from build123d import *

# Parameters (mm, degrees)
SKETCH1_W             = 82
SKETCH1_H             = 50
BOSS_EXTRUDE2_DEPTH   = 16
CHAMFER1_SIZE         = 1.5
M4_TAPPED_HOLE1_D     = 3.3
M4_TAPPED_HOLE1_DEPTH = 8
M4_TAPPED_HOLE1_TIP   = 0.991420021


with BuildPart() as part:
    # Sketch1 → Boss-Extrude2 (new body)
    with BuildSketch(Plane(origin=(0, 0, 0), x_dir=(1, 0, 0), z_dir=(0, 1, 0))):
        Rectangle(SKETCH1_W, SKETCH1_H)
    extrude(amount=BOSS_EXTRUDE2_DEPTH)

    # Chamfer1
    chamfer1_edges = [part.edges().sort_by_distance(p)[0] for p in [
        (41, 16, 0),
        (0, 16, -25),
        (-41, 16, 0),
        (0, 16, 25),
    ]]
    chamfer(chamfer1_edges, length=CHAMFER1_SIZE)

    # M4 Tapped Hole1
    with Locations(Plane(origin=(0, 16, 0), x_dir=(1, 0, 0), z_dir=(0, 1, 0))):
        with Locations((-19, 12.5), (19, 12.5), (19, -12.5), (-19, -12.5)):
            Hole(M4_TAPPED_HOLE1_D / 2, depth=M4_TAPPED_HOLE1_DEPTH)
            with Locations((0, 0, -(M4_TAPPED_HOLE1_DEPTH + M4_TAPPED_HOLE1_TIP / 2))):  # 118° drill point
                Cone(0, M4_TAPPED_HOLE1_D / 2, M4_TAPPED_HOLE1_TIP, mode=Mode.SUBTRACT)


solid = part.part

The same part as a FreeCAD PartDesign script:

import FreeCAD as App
import Part
import Sketcher
from FreeCAD import Vector
Q = App.Units.Quantity


def edges_at(feature, points):
    """Names of the edges that pass closest to the given points."""
    edges = feature.Shape.Edges
    near = lambda p: min(range(len(edges)), key=lambda i: edges[i].distToShape(Part.Vertex(*p))[0])
    return sorted({f"Edge{near(p) + 1}" for p in points})


def add_polygon(sketch, points):
    """Adds a closed chain of lines whose ends are joined by coincident constraints."""
    first, n = sketch.GeometryCount, len(points)
    for a, b in zip(points, points[1:] + points[:1]):
        sketch.addGeometry(Part.LineSegment(App.Vector(*a, 0), App.Vector(*b, 0)), False)
    for i in range(n):
        sketch.addConstraint(Sketcher.Constraint("Coincident", first + i, 2, first + (i + 1) % n, 1))

doc = App.newDocument("Part")
body = doc.addObject("PartDesign::Body", "Body")

# Sketch on XZ plane
sketch1 = doc.addObject("Sketcher::SketchObject", "Sketch")
body.addObject(sketch1)
sketch1.AttachmentSupport = (doc.XZ_Plane, [""])
sketch1.MapMode = "FlatFace"
add_polygon(sketch1, [(-41, -25), (-41, 25), (41, 25), (41, -25)])  # lines 0-3
sketch1.addConstraint(Sketcher.Constraint("Vertical", 0))
sketch1.addConstraint(Sketcher.Constraint("Horizontal", 1))
sketch1.addConstraint(Sketcher.Constraint("Vertical", 2))
sketch1.addConstraint(Sketcher.Constraint("Horizontal", 3))
sketch1.addConstraint(Sketcher.Constraint("Symmetric", 0, 2, 2, 2, -1, 1))
sketch1.addConstraint(Sketcher.Constraint("DistanceX", 1, 1, 1, 2, Q("82 mm")))
sketch1.addConstraint(Sketcher.Constraint("DistanceY", 0, 1, 0, 2, Q("50 mm")))
pad1 = doc.addObject("PartDesign::Pad", "Pad")
body.addObject(pad1)
pad1.Profile = sketch1
pad1.Length = 16
pad1.Reversed = True
doc.recompute()

chamfer = doc.addObject("PartDesign::Chamfer", "Chamfer")
body.addObject(chamfer)
chamfer.Base = (pad1, edges_at(pad1, [
    (41, 16, 0),
    (0, 16, -25),
    (-41, 16, 0),
    (0, 16, 25),
]))
chamfer.Size = 1.5

# Sketch on XZ plane
sketch2 = doc.addObject("Sketcher::SketchObject", "Sketch001")
body.addObject(sketch2)
sketch2.AttachmentSupport = (doc.XZ_Plane, [""])
sketch2.MapMode = "FlatFace"
sketch2.AttachmentOffset = App.Placement(Vector(0, 0, -16), App.Rotation())
sketch2.addGeometry(Part.Circle(Vector(-19, -12.5, 0), Vector(0, 0, 1), 1.65), False)
sketch2.addGeometry(Part.Circle(Vector(19, -12.5, 0), Vector(0, 0, 1), 1.65), False)
sketch2.addGeometry(Part.Circle(Vector(19, 12.5, 0), Vector(0, 0, 1), 1.65), False)
sketch2.addGeometry(Part.Circle(Vector(-19, 12.5, 0), Vector(0, 0, 1), 1.65), False)
sketch2.addConstraint(Sketcher.Constraint("Equal", 0, 1))
sketch2.addConstraint(Sketcher.Constraint("Equal", 1, 2))
sketch2.addConstraint(Sketcher.Constraint("Equal", 2, 3))
sketch2.addConstraint(Sketcher.Constraint("Symmetric", 0, 3, 2, 3, -1, 1))
sketch2.addConstraint(Sketcher.Constraint("Symmetric", 1, 3, 3, 3, -1, 1))
sketch2.addConstraint(Sketcher.Constraint("Symmetric", 0, 3, 1, 3, -2))
sketch2.addConstraint(Sketcher.Constraint("Diameter", 0, Q("3.3 mm")))
sketch2.addConstraint(Sketcher.Constraint("DistanceX", 0, 3, -1, 1, Q("19 mm")))
sketch2.addConstraint(Sketcher.Constraint("DistanceY", 1, 3, 2, 3, Q("25 mm")))
doc.recompute()
hole = doc.addObject("PartDesign::Hole", "Hole")
body.addObject(hole)
hole.Profile = sketch2
hole.ThreadType = "None"
hole.Diameter = 3.3
hole.DepthType = "Dimension"
hole.Depth = 8
hole.DrillPoint = "Angled"
hole.DrillPointAngle = 118
hole.Reversed = True

doc.recompute()
